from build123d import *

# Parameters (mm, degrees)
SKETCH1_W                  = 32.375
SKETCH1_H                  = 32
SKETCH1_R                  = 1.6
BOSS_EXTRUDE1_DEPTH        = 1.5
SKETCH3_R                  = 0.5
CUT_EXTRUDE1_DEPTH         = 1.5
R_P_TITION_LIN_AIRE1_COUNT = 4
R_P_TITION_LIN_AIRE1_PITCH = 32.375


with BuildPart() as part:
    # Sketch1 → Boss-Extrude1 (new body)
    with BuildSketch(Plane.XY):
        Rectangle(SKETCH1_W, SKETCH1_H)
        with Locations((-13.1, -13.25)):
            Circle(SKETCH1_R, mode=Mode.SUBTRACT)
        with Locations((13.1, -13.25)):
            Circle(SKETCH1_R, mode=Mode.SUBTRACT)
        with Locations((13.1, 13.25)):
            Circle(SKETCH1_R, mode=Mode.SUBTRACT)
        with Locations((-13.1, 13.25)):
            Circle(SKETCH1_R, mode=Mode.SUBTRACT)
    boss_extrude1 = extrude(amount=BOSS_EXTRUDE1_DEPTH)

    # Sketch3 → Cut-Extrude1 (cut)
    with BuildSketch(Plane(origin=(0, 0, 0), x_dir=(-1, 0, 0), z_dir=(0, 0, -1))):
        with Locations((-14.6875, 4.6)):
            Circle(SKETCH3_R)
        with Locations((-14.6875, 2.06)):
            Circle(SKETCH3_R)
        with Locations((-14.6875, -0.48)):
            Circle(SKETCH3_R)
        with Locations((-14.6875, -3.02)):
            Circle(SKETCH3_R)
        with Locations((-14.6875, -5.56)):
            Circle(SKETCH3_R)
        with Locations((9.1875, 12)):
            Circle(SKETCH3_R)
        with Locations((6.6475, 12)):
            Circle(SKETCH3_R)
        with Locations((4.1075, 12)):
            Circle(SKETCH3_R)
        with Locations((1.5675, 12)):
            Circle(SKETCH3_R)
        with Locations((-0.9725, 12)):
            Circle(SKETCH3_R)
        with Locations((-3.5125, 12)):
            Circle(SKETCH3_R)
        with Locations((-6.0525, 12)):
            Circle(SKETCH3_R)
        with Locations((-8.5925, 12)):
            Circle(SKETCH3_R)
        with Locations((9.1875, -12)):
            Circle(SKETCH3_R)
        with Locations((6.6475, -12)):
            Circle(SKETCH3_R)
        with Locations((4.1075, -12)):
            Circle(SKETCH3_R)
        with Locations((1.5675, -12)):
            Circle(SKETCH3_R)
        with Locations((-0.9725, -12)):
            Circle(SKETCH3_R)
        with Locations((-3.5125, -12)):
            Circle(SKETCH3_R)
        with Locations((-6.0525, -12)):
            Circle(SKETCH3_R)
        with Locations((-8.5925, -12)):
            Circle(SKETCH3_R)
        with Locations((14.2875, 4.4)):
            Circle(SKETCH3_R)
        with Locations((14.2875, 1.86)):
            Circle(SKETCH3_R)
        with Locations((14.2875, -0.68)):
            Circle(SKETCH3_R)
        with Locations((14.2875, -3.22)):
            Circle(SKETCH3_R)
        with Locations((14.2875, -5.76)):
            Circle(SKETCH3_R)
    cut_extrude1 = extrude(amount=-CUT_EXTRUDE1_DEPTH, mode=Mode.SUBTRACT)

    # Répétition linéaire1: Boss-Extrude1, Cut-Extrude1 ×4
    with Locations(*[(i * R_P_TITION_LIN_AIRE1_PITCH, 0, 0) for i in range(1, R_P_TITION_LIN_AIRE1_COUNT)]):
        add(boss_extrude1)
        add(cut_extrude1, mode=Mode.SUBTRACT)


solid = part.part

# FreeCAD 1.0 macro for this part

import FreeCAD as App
import Part
import Sketcher

doc = App.newDocument("Part")
body = doc.addObject("PartDesign::Body", "Body")

# Sketch on XY plane
sketch1 = doc.addObject("Sketcher::SketchObject", "Sketch")
body.addObject(sketch1)
sketch1.AttachmentSupport = (doc.XY_Plane, [""])
sketch1.MapMode = "FlatFace"
sketch1.addGeometry([
    Part.LineSegment(App.Vector(-16.1875, 16, 0), App.Vector(-16.1875, -16, 0)),  # 0
    Part.LineSegment(App.Vector(-16.1875, -16, 0), App.Vector(16.1875, -16, 0)),  # 1
    Part.LineSegment(App.Vector(16.1875, -16, 0), App.Vector(16.1875, 16, 0)),  # 2
    Part.LineSegment(App.Vector(16.1875, 16, 0), App.Vector(-16.1875, 16, 0)),  # 3
    Part.Circle(App.Vector(-13.1, -13.25, 0), App.Vector(0, 0, 1), 1.6),  # 4
    Part.Circle(App.Vector(13.1, -13.25, 0), App.Vector(0, 0, 1), 1.6),  # 5
    Part.Circle(App.Vector(-13.1, 13.25, 0), App.Vector(0, 0, 1), 1.6),  # 6
    Part.Circle(App.Vector(13.1, 13.25, 0), App.Vector(0, 0, 1), 1.6),  # 7
], False)
sketch1.addConstraint([
    Sketcher.Constraint("Coincident", 0, 2, 1, 1),
    Sketcher.Constraint("Coincident", 1, 2, 2, 1),
    Sketcher.Constraint("Coincident", 2, 2, 3, 1),
    Sketcher.Constraint("Coincident", 3, 2, 0, 1),
    Sketcher.Constraint("Vertical", 0),
    Sketcher.Constraint("Horizontal", 1),
    Sketcher.Constraint("Vertical", 2),
    Sketcher.Constraint("Horizontal", 3),
    Sketcher.Constraint("Equal", 4, 5),
    Sketcher.Constraint("Equal", 5, 6),
    Sketcher.Constraint("Equal", 6, 7),
    Sketcher.Constraint("Symmetric", 5, 3, 6, 3, -1, 1),
    Sketcher.Constraint("Symmetric", 4, 3, 7, 3, -1, 1),
    Sketcher.Constraint("Symmetric", 0, 2, 2, 2, -1, 1),
    Sketcher.Constraint("Symmetric", 4, 3, 5, 3, -2),
    Sketcher.Constraint("Diameter", 4, 3.2),
    Sketcher.Constraint("DistanceY", 0, 2, 0, 1, 32.0),
    Sketcher.Constraint("DistanceX", 4, 3, -1, 1, 13.1),
    Sketcher.Constraint("DistanceY", 4, 3, 6, 3, 26.5),
    Sketcher.Constraint("DistanceX", 1, 1, 1, 2, 32.375),
])
pad1 = doc.addObject("PartDesign::Pad", "Pad")
body.addObject(pad1)
pad1.Profile = sketch1
pad1.Length = 1.5

# Sketch on XY plane
sketch2 = doc.addObject("Sketcher::SketchObject", "Sketch001")
body.addObject(sketch2)
sketch2.AttachmentSupport = (doc.XY_Plane, [""])
sketch2.MapMode = "FlatFace"
sketch2.addGeometry([
    Part.Circle(App.Vector(14.6875, 4.6, 0), App.Vector(0, 0, 1), 0.5),  # 0
    Part.Circle(App.Vector(14.6875, 2.06, 0), App.Vector(0, 0, 1), 0.5),  # 1
    Part.Circle(App.Vector(14.6875, -0.48, 0), App.Vector(0, 0, 1), 0.5),  # 2
    Part.Circle(App.Vector(14.6875, -3.02, 0), App.Vector(0, 0, 1), 0.5),  # 3
    Part.Circle(App.Vector(14.6875, -5.56, 0), App.Vector(0, 0, 1), 0.5),  # 4
    Part.Circle(App.Vector(-9.1875, 12, 0), App.Vector(0, 0, 1), 0.5),  # 5
    Part.Circle(App.Vector(-6.6475, 12, 0), App.Vector(0, 0, 1), 0.5),  # 6
    Part.Circle(App.Vector(-4.1075, 12, 0), App.Vector(0, 0, 1), 0.5),  # 7
    Part.Circle(App.Vector(-1.5675, 12, 0), App.Vector(0, 0, 1), 0.5),  # 8
    Part.Circle(App.Vector(0.9725, 12, 0), App.Vector(0, 0, 1), 0.5),  # 9
    Part.Circle(App.Vector(3.5125, 12, 0), App.Vector(0, 0, 1), 0.5),  # 10
    Part.Circle(App.Vector(6.0525, 12, 0), App.Vector(0, 0, 1), 0.5),  # 11
    Part.Circle(App.Vector(8.5925, 12, 0), App.Vector(0, 0, 1), 0.5),  # 12
    Part.Circle(App.Vector(-9.1875, -12, 0), App.Vector(0, 0, 1), 0.5),  # 13
    Part.Circle(App.Vector(-6.6475, -12, 0), App.Vector(0, 0, 1), 0.5),  # 14
    Part.Circle(App.Vector(-4.1075, -12, 0), App.Vector(0, 0, 1), 0.5),  # 15
    Part.Circle(App.Vector(-1.5675, -12, 0), App.Vector(0, 0, 1), 0.5),  # 16
    Part.Circle(App.Vector(0.9725, -12, 0), App.Vector(0, 0, 1), 0.5),  # 17
    Part.Circle(App.Vector(3.5125, -12, 0), App.Vector(0, 0, 1), 0.5),  # 18
    Part.Circle(App.Vector(6.0525, -12, 0), App.Vector(0, 0, 1), 0.5),  # 19
    Part.Circle(App.Vector(8.5925, -12, 0), App.Vector(0, 0, 1), 0.5),  # 20
    Part.Circle(App.Vector(-14.2875, 4.4, 0), App.Vector(0, 0, 1), 0.5),  # 21
    Part.Circle(App.Vector(-14.2875, 1.86, 0), App.Vector(0, 0, 1), 0.5),  # 22
    Part.Circle(App.Vector(-14.2875, -0.68, 0), App.Vector(0, 0, 1), 0.5),  # 23
    Part.Circle(App.Vector(-14.2875, -3.22, 0), App.Vector(0, 0, 1), 0.5),  # 24
    Part.Circle(App.Vector(-14.2875, -5.76, 0), App.Vector(0, 0, 1), 0.5),  # 25
], False)
sketch2.addConstraint([
    Sketcher.Constraint("Equal", 0, 1),
    Sketcher.Constraint("Equal", 1, 2),
    Sketcher.Constraint("Equal", 2, 3),
    Sketcher.Constraint("Equal", 3, 4),
    Sketcher.Constraint("Equal", 4, 5),
    Sketcher.Constraint("Equal", 5, 6),
    Sketcher.Constraint("Equal", 6, 7),
    Sketcher.Constraint("Equal", 7, 8),
    Sketcher.Constraint("Equal", 8, 9),
    Sketcher.Constraint("Equal", 9, 10),
    Sketcher.Constraint("Equal", 10, 11),
    Sketcher.Constraint("Equal", 11, 12),
    Sketcher.Constraint("Equal", 12, 13),
    Sketcher.Constraint("Equal", 13, 14),
    Sketcher.Constraint("Equal", 14, 15),
    Sketcher.Constraint("Equal", 15, 16),
    Sketcher.Constraint("Equal", 16, 17),
    Sketcher.Constraint("Equal", 17, 18),
    Sketcher.Constraint("Equal", 18, 19),
    Sketcher.Constraint("Equal", 19, 20),
    Sketcher.Constraint("Equal", 20, 21),
    Sketcher.Constraint("Equal", 21, 22),
    Sketcher.Constraint("Equal", 22, 23),
    Sketcher.Constraint("Equal", 23, 24),
    Sketcher.Constraint("Equal", 24, 25),
    Sketcher.Constraint("Symmetric", 5, 3, 13, 3, -1),
    Sketcher.Constraint("Symmetric", 6, 3, 14, 3, -1),
    Sketcher.Constraint("Symmetric", 7, 3, 15, 3, -1),
    Sketcher.Constraint("Symmetric", 8, 3, 16, 3, -1),
    Sketcher.Constraint("Symmetric", 9, 3, 17, 3, -1),
    Sketcher.Constraint("Symmetric", 10, 3, 18, 3, -1),
    Sketcher.Constraint("Symmetric", 11, 3, 19, 3, -1),
    Sketcher.Constraint("Symmetric", 12, 3, 20, 3, -1),
    Sketcher.Constraint("Horizontal", 5, 3, 6, 3),
    Sketcher.Constraint("Horizontal", 6, 3, 7, 3),
    Sketcher.Constraint("Horizontal", 7, 3, 8, 3),
    Sketcher.Constraint("Horizontal", 8, 3, 9, 3),
    Sketcher.Constraint("Horizontal", 9, 3, 10, 3),
    Sketcher.Constraint("Horizontal", 10, 3, 11, 3),
    Sketcher.Constraint("Horizontal", 11, 3, 12, 3),
    Sketcher.Constraint("Vertical", 0, 3, 1, 3),
    Sketcher.Constraint("Vertical", 1, 3, 2, 3),
    Sketcher.Constraint("Vertical", 2, 3, 3, 3),
    Sketcher.Constraint("Vertical", 3, 3, 4, 3),
    Sketcher.Constraint("Vertical", 21, 3, 22, 3),
    Sketcher.Constraint("Vertical", 22, 3, 23, 3),
    Sketcher.Constraint("Vertical", 23, 3, 24, 3),
    Sketcher.Constraint("Vertical", 24, 3, 25, 3),
    Sketcher.Constraint("Diameter", 0, 1.0),
    Sketcher.Constraint("DistanceY", -1, 1, 5, 3, 12.0),
    Sketcher.Constraint("DistanceY", -1, 1, 0, 3, 4.6),
    Sketcher.Constraint("DistanceY", -1, 1, 21, 3, 4.4),
    Sketcher.Constraint("DistanceX", 5, 3, 10, 3, 12.7),
    Sketcher.Constraint("DistanceX", 21, 3, 5, 3, 5.1),
    Sketcher.Constraint("DistanceY", -1, 1, 1, 3, 2.06),
    Sketcher.Constraint("DistanceY", 2, 3, -1, 1, 0.48),
    Sketcher.Constraint("DistanceY", 3, 3, -1, 1, 3.02),
    Sketcher.Constraint("DistanceY", 4, 3, -1, 1, 5.56),
    Sketcher.Constraint("DistanceY", -1, 1, 22, 3, 1.86),
    Sketcher.Constraint("DistanceY", 23, 3, -1, 1, 0.68),
    Sketcher.Constraint("DistanceY", 24, 3, -1, 1, 3.22),
    Sketcher.Constraint("DistanceY", 25, 3, -1, 1, 5.76),
    Sketcher.Constraint("DistanceX", 5, 3, 6, 3, 2.54),
    Sketcher.Constraint("DistanceX", 6, 3, 7, 3, 2.54),
    Sketcher.Constraint("DistanceX", 7, 3, 8, 3, 2.54),
    Sketcher.Constraint("DistanceX", 8, 3, 9, 3, 2.54),
    Sketcher.Constraint("DistanceX", 10, 3, 11, 3, 2.54),
    Sketcher.Constraint("DistanceX", 11, 3, 12, 3, 2.54),
    Sketcher.Constraint("DistanceX", 5, 3, 0, 3, 23.875),
    Sketcher.Constraint("DistanceX", -1, 1, 0, 3, 14.6875),
])
pocket1 = doc.addObject("PartDesign::Pocket", "Pocket")
body.addObject(pocket1)
pocket1.Profile = sketch2
pocket1.Length = 1.5
pocket1.Reversed = True
doc.recompute()

linearpattern = doc.addObject("PartDesign::LinearPattern", "LinearPattern")
body.addObject(linearpattern)
linearpattern.Originals = [pad1, pocket1]
linearpattern.Direction = (doc.X_Axis, [""])
linearpattern.Mode = "offset"
linearpattern.Offset = 32.375
linearpattern.Occurrences = 4
body.Tip = linearpattern

doc.recompute()
